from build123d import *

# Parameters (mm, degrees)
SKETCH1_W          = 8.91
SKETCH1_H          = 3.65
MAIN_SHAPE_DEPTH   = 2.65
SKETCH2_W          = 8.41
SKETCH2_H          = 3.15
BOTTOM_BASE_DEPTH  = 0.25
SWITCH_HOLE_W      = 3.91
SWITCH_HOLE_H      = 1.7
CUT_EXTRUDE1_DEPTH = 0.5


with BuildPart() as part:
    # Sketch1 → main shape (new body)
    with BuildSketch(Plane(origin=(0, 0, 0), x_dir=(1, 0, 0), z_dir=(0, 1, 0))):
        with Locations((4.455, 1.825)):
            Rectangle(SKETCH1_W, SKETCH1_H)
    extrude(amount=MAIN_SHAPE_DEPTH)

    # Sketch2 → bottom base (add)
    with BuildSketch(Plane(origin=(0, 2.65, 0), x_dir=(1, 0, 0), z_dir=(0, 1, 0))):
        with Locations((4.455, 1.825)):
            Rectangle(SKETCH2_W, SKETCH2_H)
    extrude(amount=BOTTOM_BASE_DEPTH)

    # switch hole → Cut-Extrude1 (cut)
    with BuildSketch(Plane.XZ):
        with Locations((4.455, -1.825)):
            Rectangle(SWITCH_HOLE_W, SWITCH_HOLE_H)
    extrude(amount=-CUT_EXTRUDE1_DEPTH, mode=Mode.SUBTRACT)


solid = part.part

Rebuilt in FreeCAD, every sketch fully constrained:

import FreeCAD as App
import Part
import Sketcher
Q = App.Units.Quantity


def add_polygon(sketch, points):
    """Adds a closed chain of lines whose ends are joined by coincident constraints."""
    first, n = sketch.GeometryCount, len(points)
    for a, b in zip(points, points[1:] + points[:1]):
        sketch.addGeometry(Part.LineSegment(App.Vector(*a, 0), App.Vector(*b, 0)), False)
    for i in range(n):
        sketch.addConstraint(Sketcher.Constraint("Coincident", first + i, 2, first + (i + 1) % n, 1))

doc = App.newDocument("Part")
body = doc.addObject("PartDesign::Body", "Body")

# Sketch on XZ plane
sketch1 = body.newObject("Sketcher::SketchObject", "Sketch")
sketch1.AttachmentSupport = (doc.getObject("XZ_Plane"), [""])
sketch1.MapMode = "FlatFace"
add_polygon(sketch1, [(0, -3.6), (0, 0), (8.9, 0), (8.9, -3.6)])  # lines 0-3
sketch1.addConstraint(Sketcher.Constraint("Vertical", 0))
sketch1.addConstraint(Sketcher.Constraint("Horizontal", 1))
sketch1.addConstraint(Sketcher.Constraint("Vertical", 2))
sketch1.addConstraint(Sketcher.Constraint("Horizontal", 3))
sketch1.addConstraint(Sketcher.Constraint("Coincident", 0, 2, -1, 1))
sketch1.addConstraint(Sketcher.Constraint("DistanceX", 1, 1, 1, 2, Q("8.91 mm")))
sketch1.addConstraint(Sketcher.Constraint("DistanceY", 0, 1, 0, 2, Q("3.65 mm")))
pad1 = body.newObject("PartDesign::Pad", "Pad")
pad1.Profile = sketch1
pad1.Length = 2.65
pad1.Reversed = True

# Sketch on XZ plane
sketch2 = body.newObject("Sketcher::SketchObject", "Sketch001")
sketch2.AttachmentSupport = (doc.getObject("XZ_Plane"), [""])
sketch2.MapMode = "FlatFace"
sketch2.AttachmentOffset = App.Placement(App.Vector(0, 0, -2.65), App.Rotation())
add_polygon(sketch2, [(0.2, -3.4), (0.2, -0.2), (8.7, -0.2), (8.7, -3.4)])  # lines 0-3
sketch2.addConstraint(Sketcher.Constraint("Vertical", 0))
sketch2.addConstraint(Sketcher.Constraint("Horizontal", 1))
sketch2.addConstraint(Sketcher.Constraint("Vertical", 2))
sketch2.addConstraint(Sketcher.Constraint("Horizontal", 3))
sketch2.addConstraint(Sketcher.Constraint("DistanceX", 1, 1, 1, 2, Q("8.41 mm")))
sketch2.addConstraint(Sketcher.Constraint("DistanceY", 0, 1, 0, 2, Q("3.15 mm")))
sketch2.addConstraint(Sketcher.Constraint("DistanceY", 2, 2, -1, 1, Q("3.4 mm")))
sketch2.addConstraint(Sketcher.Constraint("DistanceX", -1, 1, 0, 2, Q("0.25 mm")))
pad2 = body.newObject("PartDesign::Pad", "Pad001")
pad2.Profile = sketch2
pad2.Length = 0.25
pad2.Reversed = True

# Sketch on XZ plane
sketch3 = body.newObject("Sketcher::SketchObject", "Sketch002")
sketch3.AttachmentSupport = (doc.getObject("XZ_Plane"), [""])
sketch3.MapMode = "FlatFace"
add_polygon(sketch3, [(2.5, -1), (2.5, -2.7), (6.4, -2.7), (6.4, -1)])  # lines 0-3
sketch3.addConstraint(Sketcher.Constraint("Vertical", 0))
sketch3.addConstraint(Sketcher.Constraint("Horizontal", 1))
sketch3.addConstraint(Sketcher.Constraint("Vertical", 2))
sketch3.addConstraint(Sketcher.Constraint("Horizontal", 3))
sketch3.addConstraint(Sketcher.Constraint("DistanceY", 0, 2, 0, 1, Q("1.7 mm")))
sketch3.addConstraint(Sketcher.Constraint("DistanceX", 1, 1, 1, 2, Q("3.91 mm")))
sketch3.addConstraint(Sketcher.Constraint("DistanceX", -1, 1, 0, 2, Q("2.5 mm")))
sketch3.addConstraint(Sketcher.Constraint("DistanceY", 0, 2, -1, 1, Q("2.675 mm")))
pocket1 = body.newObject("PartDesign::Pocket", "Pocket")
pocket1.Profile = sketch3
pocket1.Length = 0.5

doc.recompute()
